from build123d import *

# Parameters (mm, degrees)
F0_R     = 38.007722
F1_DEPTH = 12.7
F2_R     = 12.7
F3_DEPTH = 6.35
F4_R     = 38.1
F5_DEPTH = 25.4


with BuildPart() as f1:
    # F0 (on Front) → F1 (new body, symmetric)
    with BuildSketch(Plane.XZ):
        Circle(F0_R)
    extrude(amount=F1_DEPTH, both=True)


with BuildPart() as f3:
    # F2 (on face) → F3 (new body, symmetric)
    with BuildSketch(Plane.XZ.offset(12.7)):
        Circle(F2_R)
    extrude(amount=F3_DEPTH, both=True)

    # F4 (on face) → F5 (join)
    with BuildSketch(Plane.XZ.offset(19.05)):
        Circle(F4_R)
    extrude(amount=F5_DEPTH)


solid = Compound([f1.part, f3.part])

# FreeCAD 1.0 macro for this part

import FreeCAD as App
import Part
import Sketcher

V = App.Vector
Q = App.Units.Quantity

doc = App.newDocument("Part")
params = doc.addObject("Spreadsheet::Sheet", "Params")
for row, (alias, value) in enumerate([
    ("pad1_length", "1 in"),
    ("sketch2_diameter", "1 in"),
    ("pad2_length", "0.5 in"),
    ("sketch3_diameter", "3 in"),
    ("pad3_length", "1 in"),
], start=1):
    params.set(f"A{row}", alias)
    params.set(f"B{row}", "=" + value)
    params.setAlias(f"B{row}", alias)

body = doc.addObject("PartDesign::Body", "Body")

# Sketch on XZ plane
sketch1 = doc.addObject("Sketcher::SketchObject", "Sketch")
body.addObject(sketch1)
sketch1.AttachmentSupport = (doc.XZ_Plane, [""])
sketch1.MapMode = "FlatFace"
sketch1.addGeometry(Part.Circle(V(0, 0, 0), V(0, 0, 1), 38.007722), False)
sketch1.addConstraint([
    Sketcher.Constraint("Coincident", 0, 3, -1, 1),
    Sketcher.Constraint("Diameter", 0, 76.015444),
])
pad1 = doc.addObject("PartDesign::Pad", "Pad")
body.addObject(pad1)
pad1.Profile = sketch1
pad1.setExpression("Length", "Params.pad1_length")
pad1.Midplane = True
body2 = doc.addObject("PartDesign::Body", "Body001")

# Sketch on XZ plane
sketch2 = doc.addObject("Sketcher::SketchObject", "Sketch001")
body2.addObject(sketch2)
sketch2.AttachmentSupport = (doc.getObject("XZ_Plane001"), [""])
sketch2.MapMode = "FlatFace"
sketch2.AttachmentOffset = App.Placement(V(0, 0, 0.5 * 25.4), App.Rotation())
sketch2.addGeometry(Part.Circle(V(0, 0, 0), V(0, 0, 1), 12.7), False)
sketch2.addConstraint([
    Sketcher.Constraint("Coincident", 0, 3, -1, 1),
    Sketcher.Constraint("Diameter", 0, Q("1 in")),
])
sketch2.setExpression("Constraints[1]", "Params.sketch2_diameter")
pad2 = doc.addObject("PartDesign::Pad", "Pad001")
body2.addObject(pad2)
pad2.Profile = sketch2
pad2.setExpression("Length", "Params.pad2_length")
pad2.Midplane = True

# Sketch on XZ plane
sketch3 = doc.addObject("Sketcher::SketchObject", "Sketch002")
body2.addObject(sketch3)
sketch3.AttachmentSupport = (doc.getObject("XZ_Plane001"), [""])
sketch3.MapMode = "FlatFace"
sketch3.AttachmentOffset = App.Placement(V(0, 0, 0.75 * 25.4), App.Rotation())
sketch3.addGeometry(Part.Circle(V(0, 0, 0), V(0, 0, 1), 38.1), False)
sketch3.addConstraint([
    Sketcher.Constraint("Coincident", 0, 3, -1, 1),
    Sketcher.Constraint("Diameter", 0, Q("3 in")),
])
sketch3.setExpression("Constraints[1]", "Params.sketch3_diameter")
pad3 = doc.addObject("PartDesign::Pad", "Pad002")
body2.addObject(pad3)
pad3.Profile = sketch3
pad3.setExpression("Length", "Params.pad3_length")

doc.recompute()
